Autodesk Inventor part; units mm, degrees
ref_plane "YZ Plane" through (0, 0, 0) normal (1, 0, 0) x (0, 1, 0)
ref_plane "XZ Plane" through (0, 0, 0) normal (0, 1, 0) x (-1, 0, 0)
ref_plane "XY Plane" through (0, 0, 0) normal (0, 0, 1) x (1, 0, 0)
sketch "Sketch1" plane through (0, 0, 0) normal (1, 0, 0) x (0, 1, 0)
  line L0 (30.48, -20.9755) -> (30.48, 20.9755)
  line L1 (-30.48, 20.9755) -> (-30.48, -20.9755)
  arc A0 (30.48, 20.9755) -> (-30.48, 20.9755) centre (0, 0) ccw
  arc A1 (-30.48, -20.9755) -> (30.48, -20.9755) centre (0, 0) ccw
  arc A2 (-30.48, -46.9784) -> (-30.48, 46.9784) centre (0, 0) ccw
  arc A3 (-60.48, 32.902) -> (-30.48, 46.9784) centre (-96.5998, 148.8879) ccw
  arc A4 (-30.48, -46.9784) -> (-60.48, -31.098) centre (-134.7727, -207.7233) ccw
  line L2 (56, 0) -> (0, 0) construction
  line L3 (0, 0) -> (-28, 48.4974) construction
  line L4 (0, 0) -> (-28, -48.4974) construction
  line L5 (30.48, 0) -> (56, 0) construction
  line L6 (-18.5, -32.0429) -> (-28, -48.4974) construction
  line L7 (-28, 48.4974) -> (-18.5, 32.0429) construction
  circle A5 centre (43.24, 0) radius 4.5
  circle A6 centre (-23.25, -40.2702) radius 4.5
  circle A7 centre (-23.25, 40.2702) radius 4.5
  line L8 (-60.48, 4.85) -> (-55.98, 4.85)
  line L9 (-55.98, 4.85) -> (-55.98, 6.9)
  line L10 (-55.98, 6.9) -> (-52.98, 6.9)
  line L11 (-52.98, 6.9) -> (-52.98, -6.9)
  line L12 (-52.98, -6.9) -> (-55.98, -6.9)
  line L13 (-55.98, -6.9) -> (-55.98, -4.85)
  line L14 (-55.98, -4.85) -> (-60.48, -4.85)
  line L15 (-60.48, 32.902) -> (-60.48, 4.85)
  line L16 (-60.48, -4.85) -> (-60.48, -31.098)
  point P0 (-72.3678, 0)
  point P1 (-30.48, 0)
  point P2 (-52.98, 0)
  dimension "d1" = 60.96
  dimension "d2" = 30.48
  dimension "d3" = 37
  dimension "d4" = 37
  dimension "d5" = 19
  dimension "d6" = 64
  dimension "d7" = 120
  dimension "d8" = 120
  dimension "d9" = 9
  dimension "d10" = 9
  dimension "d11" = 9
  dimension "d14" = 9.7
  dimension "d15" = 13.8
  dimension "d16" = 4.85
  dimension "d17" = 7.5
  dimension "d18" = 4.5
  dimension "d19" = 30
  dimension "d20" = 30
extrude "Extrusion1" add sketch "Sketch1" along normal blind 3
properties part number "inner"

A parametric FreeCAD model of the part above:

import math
import FreeCAD as App
import Part
import Sketcher

V = App.Vector
Q = App.Units.Quantity

doc = App.newDocument("Part")
body = doc.addObject("PartDesign::Body", "Body")

# Sketch on YZ plane
sketch1 = doc.addObject("Sketcher::SketchObject", "Sketch")
body.addObject(sketch1)
sketch1.AttachmentSupport = (doc.YZ_Plane, [""])
sketch1.MapMode = "FlatFace"
sketch1.addGeometry(Part.ArcOfCircle(Part.Circle(V(-134.774673, -207.726659, 0), V(0, 0, 1), 191.617801), math.radians(57.024191), math.radians(67.187094)), False)
sketch1.addGeometry(Part.ArcOfCircle(Part.Circle(V(0, 0, 0), V(0, 0, 1), 56.000004), math.radians(-122.975863), math.radians(122.975863)), False)
sketch1.addGeometry(Part.ArcOfCircle(Part.Circle(V(-96.600215, 148.888968, 0), V(0, 0, 1), 121.481055), math.radians(-72.702568), math.radians(-57.02424)), False)
sketch1.addGeometry(Part.LineSegment(V(-60.48, 32.902, 0), V(-60.48, 4.85, 0)), False)
sketch1.addGeometry(Part.LineSegment(V(-60.48, 4.85, 0), V(-55.98, 4.85, 0)), False)
sketch1.addGeometry(Part.LineSegment(V(-55.98, 4.85, 0), V(-55.98, 6.9, 0)), False)
sketch1.addGeometry(Part.LineSegment(V(-55.98, 6.9, 0), V(-52.98, 6.9, 0)), False)
sketch1.addGeometry(Part.LineSegment(V(-52.98, 6.9, 0), V(-52.98, -6.9, 0)), False)
sketch1.addGeometry(Part.LineSegment(V(-52.98, -6.9, 0), V(-55.98, -6.9, 0)), False)
sketch1.addGeometry(Part.LineSegment(V(-55.98, -6.9, 0), V(-55.98, -4.85, 0)), False)
sketch1.addGeometry(Part.LineSegment(V(-55.98, -4.85, 0), V(-60.48, -4.85, 0)), False)
sketch1.addGeometry(Part.LineSegment(V(-60.48, -4.85, 0), V(-60.48, -31.098, 0)), False)
sketch1.addGeometry(Part.Circle(V(-23.25, -40.2702, 0), V(0, 0, 1), 4.5), False)
sketch1.addGeometry(Part.LineSegment(V(30.48, 20.9755, 0), V(30.48, -20.9755, 0)), False)
sketch1.addGeometry(Part.ArcOfCircle(Part.Circle(V(0, 0, 0), V(0, 0, 1), 37.000027), math.radians(-145.465318), math.radians(-34.534682)), False)
sketch1.addGeometry(Part.LineSegment(V(-30.48, -20.9755, 0), V(-30.48, 20.9755, 0)), False)
sketch1.addGeometry(Part.ArcOfCircle(Part.Circle(V(0, 0, 0), V(0, 0, 1), 37.000027), math.radians(34.534682), math.radians(145.465318)), False)
sketch1.addGeometry(Part.Circle(V(43.24, 0, 0), V(0, 0, 1), 4.5), False)
sketch1.addGeometry(Part.Circle(V(-23.25, 40.2702, 0), V(0, 0, 1), 4.5), False)
sketch1.addConstraint(Sketcher.Constraint("Tangent", 0, 1, 1, 1))
sketch1.addConstraint(Sketcher.Constraint("Tangent", 1, 2, 2, 2))
sketch1.addConstraint(Sketcher.Constraint("Coincident", 2, 1, 3, 1))
sketch1.addConstraint(Sketcher.Constraint("Coincident", 3, 2, 4, 1))
sketch1.addConstraint(Sketcher.Constraint("Coincident", 4, 2, 5, 1))
sketch1.addConstraint(Sketcher.Constraint("Coincident", 5, 2, 6, 1))
sketch1.addConstraint(Sketcher.Constraint("Coincident", 6, 2, 7, 1))
sketch1.addConstraint(Sketcher.Constraint("Coincident", 7, 2, 8, 1))
sketch1.addConstraint(Sketcher.Constraint("Coincident", 8, 2, 9, 1))
sketch1.addConstraint(Sketcher.Constraint("Coincident", 9, 2, 10, 1))
sketch1.addConstraint(Sketcher.Constraint("Coincident", 10, 2, 11, 1))
sketch1.addConstraint(Sketcher.Constraint("Coincident", 11, 2, 0, 2))
sketch1.addConstraint(Sketcher.Constraint("Coincident", 13, 2, 14, 2))
sketch1.addConstraint(Sketcher.Constraint("Coincident", 14, 1, 15, 1))
sketch1.addConstraint(Sketcher.Constraint("Coincident", 15, 2, 16, 2))
sketch1.addConstraint(Sketcher.Constraint("Coincident", 16, 1, 13, 1))
sketch1.addConstraint(Sketcher.Constraint("Vertical", 3))
sketch1.addConstraint(Sketcher.Constraint("Horizontal", 4))
sketch1.addConstraint(Sketcher.Constraint("Vertical", 5))
sketch1.addConstraint(Sketcher.Constraint("Horizontal", 6))
sketch1.addConstraint(Sketcher.Constraint("Vertical", 7))
sketch1.addConstraint(Sketcher.Constraint("Horizontal", 8))
sketch1.addConstraint(Sketcher.Constraint("Vertical", 9))
sketch1.addConstraint(Sketcher.Constraint("Horizontal", 10))
sketch1.addConstraint(Sketcher.Constraint("Vertical", 11))
sketch1.addConstraint(Sketcher.Constraint("Vertical", 13))
sketch1.addConstraint(Sketcher.Constraint("Vertical", 15))
sketch1.addConstraint(Sketcher.Constraint("Coincident", 1, 3, -1, 1))
sketch1.addConstraint(Sketcher.Constraint("Coincident", 14, 3, -1, 1))
sketch1.addConstraint(Sketcher.Constraint("Coincident", 16, 3, -1, 1))
sketch1.addConstraint(Sketcher.Constraint("Equal", 14, 16))
sketch1.addConstraint(Sketcher.Constraint("Equal", 12, 17))
sketch1.addConstraint(Sketcher.Constraint("Equal", 17, 18))
sketch1.addConstraint(Sketcher.Constraint("Symmetric", 12, 3, 18, 3, -1))
sketch1.addConstraint(Sketcher.Constraint("Symmetric", 5, 2, 8, 2, -1))
sketch1.addConstraint(Sketcher.Constraint("Symmetric", 3, 2, 10, 2, -1))
sketch1.addConstraint(Sketcher.Constraint("PointOnObject", 17, 3, -1))
sketch1.addConstraint(Sketcher.Constraint("Horizontal", 13, 2, 14, 1))
sketch1.addConstraint(Sketcher.Constraint("Vertical", 1, 2, 14, 1))
sketch1.addConstraint(Sketcher.Constraint("Diameter", 12, Q("9 mm")))
sketch1.addConstraint(Sketcher.Constraint("Radius", 14, Q("37 mm")))
sketch1.addConstraint(Sketcher.Constraint("DistanceX", 4, 1, 4, 2, Q("4.5 mm")))
sketch1.addConstraint(Sketcher.Constraint("DistanceY", 7, 2, 7, 1, Q("13.8 mm")))
sketch1.addConstraint(Sketcher.Constraint("Radius", 1, Q("56 mm")))
sketch1.addConstraint(Sketcher.Constraint("DistanceX", 2, 1, 1, 2, Q("30 mm")))
sketch1.addConstraint(Sketcher.Constraint("DistanceX", 3, 2, 6, 2, Q("7.5 mm")))
sketch1.addConstraint(Sketcher.Constraint("DistanceY", 9, 2, 4, 2, Q("9.7 mm")))
sketch1.addConstraint(Sketcher.Constraint("DistanceX", 1, 2, -1, 1, Q("30.48 mm")))
sketch1.addConstraint(Sketcher.Constraint("Radius", 2, Q("121.481 mm")))
sketch1.addConstraint(Sketcher.Constraint("Radius", 0, Q("191.6178 mm")))
sketch1.addConstraint(Sketcher.Constraint("DistanceY", 11, 2, 11, 1, Q("26.248 mm")))
sketch1.addConstraint(Sketcher.Constraint("DistanceX", 12, 3, -1, 1, Q("23.25 mm")))
sketch1.addConstraint(Sketcher.Constraint("DistanceX", -1, 1, 17, 3, Q("43.24 mm")))
sketch1.addConstraint(Sketcher.Constraint("DistanceY", 12, 3, -1, 1, Q("40.2702 mm")))
pad1 = doc.addObject("PartDesign::Pad", "Pad")
body.addObject(pad1)
pad1.Profile = sketch1
pad1.Length = 3

doc.recompute()
